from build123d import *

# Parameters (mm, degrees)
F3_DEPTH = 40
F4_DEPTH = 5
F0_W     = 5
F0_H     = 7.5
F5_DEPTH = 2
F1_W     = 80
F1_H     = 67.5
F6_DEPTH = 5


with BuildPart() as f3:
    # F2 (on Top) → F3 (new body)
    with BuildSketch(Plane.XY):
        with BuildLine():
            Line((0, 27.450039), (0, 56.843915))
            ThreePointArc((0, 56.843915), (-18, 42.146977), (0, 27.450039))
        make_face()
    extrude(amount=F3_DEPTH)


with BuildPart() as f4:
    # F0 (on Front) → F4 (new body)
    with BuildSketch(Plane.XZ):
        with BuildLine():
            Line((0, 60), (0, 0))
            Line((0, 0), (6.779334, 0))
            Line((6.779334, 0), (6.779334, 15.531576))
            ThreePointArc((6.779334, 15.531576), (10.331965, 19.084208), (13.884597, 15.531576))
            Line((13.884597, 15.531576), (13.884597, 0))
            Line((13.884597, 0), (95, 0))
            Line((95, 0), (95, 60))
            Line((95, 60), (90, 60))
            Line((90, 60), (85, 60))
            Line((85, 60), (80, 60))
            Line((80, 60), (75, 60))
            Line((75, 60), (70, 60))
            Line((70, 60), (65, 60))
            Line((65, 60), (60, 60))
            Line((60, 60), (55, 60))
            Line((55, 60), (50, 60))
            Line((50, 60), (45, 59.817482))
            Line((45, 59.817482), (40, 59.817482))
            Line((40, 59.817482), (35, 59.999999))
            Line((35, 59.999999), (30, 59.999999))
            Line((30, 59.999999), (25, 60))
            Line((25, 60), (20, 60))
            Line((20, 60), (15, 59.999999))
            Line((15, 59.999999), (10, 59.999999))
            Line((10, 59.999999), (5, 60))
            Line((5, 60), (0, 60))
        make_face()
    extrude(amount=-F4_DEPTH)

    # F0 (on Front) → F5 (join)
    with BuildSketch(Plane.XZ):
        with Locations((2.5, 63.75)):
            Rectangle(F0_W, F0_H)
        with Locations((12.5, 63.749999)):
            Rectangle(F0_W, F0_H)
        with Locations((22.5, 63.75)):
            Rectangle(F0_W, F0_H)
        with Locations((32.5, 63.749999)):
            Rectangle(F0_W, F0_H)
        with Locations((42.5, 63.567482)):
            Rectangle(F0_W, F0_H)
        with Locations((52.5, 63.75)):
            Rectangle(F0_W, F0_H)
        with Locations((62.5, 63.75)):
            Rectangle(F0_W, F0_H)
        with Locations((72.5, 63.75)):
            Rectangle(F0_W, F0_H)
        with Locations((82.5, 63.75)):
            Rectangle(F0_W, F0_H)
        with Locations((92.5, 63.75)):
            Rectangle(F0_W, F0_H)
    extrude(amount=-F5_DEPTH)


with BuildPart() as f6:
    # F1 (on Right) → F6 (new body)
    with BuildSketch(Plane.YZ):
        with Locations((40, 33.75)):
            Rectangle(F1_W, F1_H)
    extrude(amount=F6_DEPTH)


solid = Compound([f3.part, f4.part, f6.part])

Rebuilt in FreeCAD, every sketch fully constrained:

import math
import FreeCAD as App
import Part
import Sketcher
from FreeCAD import Vector
Q = App.Units.Quantity

doc = App.newDocument("Part")
body = doc.addObject("PartDesign::Body", "Body")

sketch1 = body.newObject("Sketcher::SketchObject", "Sketch")
sketch1.AttachmentSupport = (doc.getObject("XY_Plane"), [""])
sketch1.MapMode = "FlatFace"
sketch1.addGeometry([
    Part.LineSegment(Vector(0, 27.450039, 0), Vector(0, 56.843915, 0)),
    Part.ArcOfCircle(Part.Circle(Vector(-3, 42.146977, 0), Vector(0, 0, 1), 15), math.radians(78.463039), math.radians(281.536961)),
], False)
sketch1.addConstraint([
    Sketcher.Constraint("Coincident", 0, 1, 1, 2),
    Sketcher.Constraint("Coincident", 1, 1, 0, 2),
    Sketcher.Constraint("Vertical", 0),
    Sketcher.Constraint("PointOnObject", 0, 1, -2),
    Sketcher.Constraint("Radius", 1, Q("15 mm")),
    Sketcher.Constraint("DistanceX", 1, 3, -1, 1, Q("3 mm")),
    Sketcher.Constraint("DistanceY", -1, 1, 0, 1, Q("27.450039 mm")),
])
pad1 = body.newObject("PartDesign::Pad", "Pad")
pad1.Profile = sketch1
pad1.Length = 40
body2 = doc.addObject("PartDesign::Body", "Body001")

sketch2 = body2.newObject("Sketcher::SketchObject", "Sketch001")
sketch2.AttachmentSupport = (doc.getObject("XZ_Plane001"), [""])
sketch2.MapMode = "FlatFace"
sketch2.addGeometry([
    Part.LineSegment(Vector(0, 60, 0), Vector(0, 0, 0)),
    Part.LineSegment(Vector(0, 0, 0), Vector(6.779334, 0, 0)),
    Part.LineSegment(Vector(6.779334, 0, 0), Vector(6.779334, 15.531576, 0)),
    Part.ArcOfCircle(Part.Circle(Vector(10.331966, 15.531576, 0), Vector(0, 0, 1), 3.552631), math.radians(-0.000008), math.radians(180.000008)),
    Part.LineSegment(Vector(13.884597, 15.531576, 0), Vector(13.884597, 0, 0)),
    Part.LineSegment(Vector(13.884597, 0, 0), Vector(95, 0, 0)),
    Part.LineSegment(Vector(95, 0, 0), Vector(95, 60, 0)),
    Part.LineSegment(Vector(95, 60, 0), Vector(50, 60, 0)),
    Part.LineSegment(Vector(50, 60, 0), Vector(45, 59.817482, 0)),
    Part.LineSegment(Vector(45, 59.817482, 0), Vector(40, 59.817482, 0)),
    Part.LineSegment(Vector(40, 59.817482, 0), Vector(35, 59.999999, 0)),
    Part.LineSegment(Vector(35, 59.999999, 0), Vector(30, 59.999999, 0)),
    Part.LineSegment(Vector(30, 59.999999, 0), Vector(25, 60, 0)),
    Part.LineSegment(Vector(25, 60, 0), Vector(20, 60, 0)),
    Part.LineSegment(Vector(20, 60, 0), Vector(15, 59.999999, 0)),
    Part.LineSegment(Vector(15, 59.999999, 0), Vector(10, 59.999999, 0)),
    Part.LineSegment(Vector(10, 59.999999, 0), Vector(5, 60, 0)),
    Part.LineSegment(Vector(5, 60, 0), Vector(0, 60, 0)),
], False)
sketch2.addConstraint([
    Sketcher.Constraint("Coincident", 0, 2, 1, 1),
    Sketcher.Constraint("Coincident", 1, 2, 2, 1),
    Sketcher.Constraint("Tangent", 2, 2, 3, 2),
    Sketcher.Constraint("Tangent", 3, 1, 4, 1),
    Sketcher.Constraint("Coincident", 4, 2, 5, 1),
    Sketcher.Constraint("Coincident", 5, 2, 6, 1),
    Sketcher.Constraint("Coincident", 6, 2, 7, 1),
    Sketcher.Constraint("Coincident", 7, 2, 8, 1),
    Sketcher.Constraint("Coincident", 8, 2, 9, 1),
    Sketcher.Constraint("Coincident", 9, 2, 10, 1),
    Sketcher.Constraint("Coincident", 10, 2, 11, 1),
    Sketcher.Constraint("Coincident", 11, 2, 12, 1),
    Sketcher.Constraint("Coincident", 12, 2, 13, 1),
    Sketcher.Constraint("Coincident", 13, 2, 14, 1),
    Sketcher.Constraint("Coincident", 14, 2, 15, 1),
    Sketcher.Constraint("Coincident", 15, 2, 16, 1),
    Sketcher.Constraint("Coincident", 16, 2, 17, 1),
    Sketcher.Constraint("Coincident", 17, 2, 0, 1),
    Sketcher.Constraint("Vertical", 0),
    Sketcher.Constraint("Horizontal", 1),
    Sketcher.Constraint("Vertical", 2),
    Sketcher.Constraint("Vertical", 4),
    Sketcher.Constraint("Horizontal", 5),
    Sketcher.Constraint("Vertical", 6),
    Sketcher.Constraint("Horizontal", 7),
    Sketcher.Constraint("Horizontal", 9),
    Sketcher.Constraint("Horizontal", 11),
    Sketcher.Constraint("Horizontal", 12),
    Sketcher.Constraint("Horizontal", 13),
    Sketcher.Constraint("Horizontal", 14),
    Sketcher.Constraint("Horizontal", 15),
    Sketcher.Constraint("Horizontal", 16),
    Sketcher.Constraint("Horizontal", 17),
    Sketcher.Constraint("Coincident", 0, 2, -1, 1),
    Sketcher.Constraint("PointOnObject", 4, 2, -1),
    Sketcher.Constraint("Horizontal", 7, 2, 10, 2),
    Sketcher.Constraint("Equal", 9, 11),
    Sketcher.Constraint("Equal", 11, 12),
    Sketcher.Constraint("Equal", 12, 13),
    Sketcher.Constraint("Equal", 13, 14),
    Sketcher.Constraint("Equal", 14, 15),
    Sketcher.Constraint("Equal", 15, 16),
    Sketcher.Constraint("Equal", 16, 17),
    Sketcher.Constraint("Equal", 8, 10),
    Sketcher.Constraint("DistanceX", 7, 2, 7, 1, Q("45 mm")),
    Sketcher.Constraint("DistanceX", 9, 2, 9, 1, Q("5 mm")),
    Sketcher.Constraint("DistanceY", 0, 2, 0, 1, Q("60 mm")),
    Sketcher.Constraint("DistanceX", -1, 1, 5, 2, Q("95 mm")),
    Sketcher.Constraint("Radius", 3, Q("3.552631 mm")),
    Sketcher.Constraint("Distance", 8, Q("5.00333 mm")),
    Sketcher.Constraint("DistanceX", 1, 1, 1, 2, Q("6.779334 mm")),
    Sketcher.Constraint("DistanceY", 2, 1, 2, 2, Q("15.531576 mm")),
])
pad2 = body2.newObject("PartDesign::Pad", "Pad001")
pad2.Profile = sketch2
pad2.Length = 5
pad2.Reversed = True

sketch3 = body2.newObject("Sketcher::SketchObject", "Sketch002")
sketch3.AttachmentSupport = (doc.getObject("XZ_Plane001"), [""])
sketch3.MapMode = "FlatFace"
sketch3.addGeometry([
    Part.LineSegment(Vector(0, 67.5, 0), Vector(0, 60, 0)),
    Part.LineSegment(Vector(0, 60, 0), Vector(5, 60, 0)),
    Part.LineSegment(Vector(5, 60, 0), Vector(5, 67.5, 0)),
    Part.LineSegment(Vector(5, 67.5, 0), Vector(0, 67.5, 0)),
    Part.LineSegment(Vector(10, 67.499999, 0), Vector(10, 59.999999, 0)),
    Part.LineSegment(Vector(10, 59.999999, 0), Vector(15, 59.999999, 0)),
    Part.LineSegment(Vector(15, 59.999999, 0), Vector(15, 67.499999, 0)),
    Part.LineSegment(Vector(15, 67.499999, 0), Vector(10, 67.499999, 0)),
    Part.LineSegment(Vector(20, 67.5, 0), Vector(20, 60, 0)),
    Part.LineSegment(Vector(20, 60, 0), Vector(25, 60, 0)),
    Part.LineSegment(Vector(25, 60, 0), Vector(25, 67.5, 0)),
    Part.LineSegment(Vector(25, 67.5, 0), Vector(20, 67.5, 0)),
    Part.LineSegment(Vector(30, 67.499999, 0), Vector(30, 59.999999, 0)),
    Part.LineSegment(Vector(30, 59.999999, 0), Vector(35, 59.999999, 0)),
    Part.LineSegment(Vector(35, 59.999999, 0), Vector(35, 67.499999, 0)),
    Part.LineSegment(Vector(35, 67.499999, 0), Vector(30, 67.499999, 0)),
    Part.LineSegment(Vector(40, 67.317482, 0), Vector(40, 59.817482, 0)),
    Part.LineSegment(Vector(40, 59.817482, 0), Vector(45, 59.817482, 0)),
    Part.LineSegment(Vector(45, 59.817482, 0), Vector(45, 67.317482, 0)),
    Part.LineSegment(Vector(45, 67.317482, 0), Vector(40, 67.317482, 0)),
    Part.LineSegment(Vector(50, 67.5, 0), Vector(50, 60, 0)),
    Part.LineSegment(Vector(50, 60, 0), Vector(55, 60, 0)),
    Part.LineSegment(Vector(55, 60, 0), Vector(55, 67.5, 0)),
    Part.LineSegment(Vector(55, 67.5, 0), Vector(50, 67.5, 0)),
    Part.LineSegment(Vector(60, 67.5, 0), Vector(60, 60, 0)),
    Part.LineSegment(Vector(60, 60, 0), Vector(65, 60, 0)),
    Part.LineSegment(Vector(65, 60, 0), Vector(65, 67.5, 0)),
    Part.LineSegment(Vector(65, 67.5, 0), Vector(60, 67.5, 0)),
    Part.LineSegment(Vector(70, 67.5, 0), Vector(70, 60, 0)),
    Part.LineSegment(Vector(70, 60, 0), Vector(75, 60, 0)),
    Part.LineSegment(Vector(75, 60, 0), Vector(75, 67.5, 0)),
    Part.LineSegment(Vector(75, 67.5, 0), Vector(70, 67.5, 0)),
    Part.LineSegment(Vector(80, 67.5, 0), Vector(80, 60, 0)),
    Part.LineSegment(Vector(80, 60, 0), Vector(85, 60, 0)),
    Part.LineSegment(Vector(85, 60, 0), Vector(85, 67.5, 0)),
    Part.LineSegment(Vector(85, 67.5, 0), Vector(80, 67.5, 0)),
    Part.LineSegment(Vector(90, 67.5, 0), Vector(90, 60, 0)),
    Part.LineSegment(Vector(90, 60, 0), Vector(95, 60, 0)),
    Part.LineSegment(Vector(95, 60, 0), Vector(95, 67.5, 0)),
    Part.LineSegment(Vector(95, 67.5, 0), Vector(90, 67.5, 0)),
], False)
sketch3.addConstraint([
    Sketcher.Constraint("Coincident", 0, 2, 1, 1),
    Sketcher.Constraint("Coincident", 1, 2, 2, 1),
    Sketcher.Constraint("Coincident", 2, 2, 3, 1),
    Sketcher.Constraint("Coincident", 3, 2, 0, 1),
    Sketcher.Constraint("Coincident", 4, 2, 5, 1),
    Sketcher.Constraint("Coincident", 5, 2, 6, 1),
    Sketcher.Constraint("Coincident", 6, 2, 7, 1),
    Sketcher.Constraint("Coincident", 7, 2, 4, 1),
    Sketcher.Constraint("Coincident", 8, 2, 9, 1),
    Sketcher.Constraint("Coincident", 9, 2, 10, 1),
    Sketcher.Constraint("Coincident", 10, 2, 11, 1),
    Sketcher.Constraint("Coincident", 11, 2, 8, 1),
    Sketcher.Constraint("Coincident", 12, 2, 13, 1),
    Sketcher.Constraint("Coincident", 13, 2, 14, 1),
    Sketcher.Constraint("Coincident", 14, 2, 15, 1),
    Sketcher.Constraint("Coincident", 15, 2, 12, 1),
    Sketcher.Constraint("Coincident", 16, 2, 17, 1),
    Sketcher.Constraint("Coincident", 17, 2, 18, 1),
    Sketcher.Constraint("Coincident", 18, 2, 19, 1),
    Sketcher.Constraint("Coincident", 19, 2, 16, 1),
    Sketcher.Constraint("Coincident", 20, 2, 21, 1),
    Sketcher.Constraint("Coincident", 21, 2, 22, 1),
    Sketcher.Constraint("Coincident", 22, 2, 23, 1),
    Sketcher.Constraint("Coincident", 23, 2, 20, 1),
    Sketcher.Constraint("Coincident", 24, 2, 25, 1),
    Sketcher.Constraint("Coincident", 25, 2, 26, 1),
    Sketcher.Constraint("Coincident", 26, 2, 27, 1),
    Sketcher.Constraint("Coincident", 27, 2, 24, 1),
    Sketcher.Constraint("Coincident", 28, 2, 29, 1),
    Sketcher.Constraint("Coincident", 29, 2, 30, 1),
    Sketcher.Constraint("Coincident", 30, 2, 31, 1),
    Sketcher.Constraint("Coincident", 31, 2, 28, 1),
    Sketcher.Constraint("Coincident", 32, 2, 33, 1),
    Sketcher.Constraint("Coincident", 33, 2, 34, 1),
    Sketcher.Constraint("Coincident", 34, 2, 35, 1),
    Sketcher.Constraint("Coincident", 35, 2, 32, 1),
    Sketcher.Constraint("Coincident", 36, 2, 37, 1),
    Sketcher.Constraint("Coincident", 37, 2, 38, 1),
    Sketcher.Constraint("Coincident", 38, 2, 39, 1),
    Sketcher.Constraint("Coincident", 39, 2, 36, 1),
    Sketcher.Constraint("Vertical", 0),
    Sketcher.Constraint("Horizontal", 1),
    Sketcher.Constraint("Vertical", 2),
    Sketcher.Constraint("Horizontal", 3),
    Sketcher.Constraint("Vertical", 4),
    Sketcher.Constraint("Horizontal", 5),
    Sketcher.Constraint("Vertical", 6),
    Sketcher.Constraint("Horizontal", 7),
    Sketcher.Constraint("Vertical", 8),
    Sketcher.Constraint("Horizontal", 9),
    Sketcher.Constraint("Vertical", 10),
    Sketcher.Constraint("Horizontal", 11),
    Sketcher.Constraint("Vertical", 12),
    Sketcher.Constraint("Horizontal", 13),
    Sketcher.Constraint("Vertical", 14),
    Sketcher.Constraint("Horizontal", 15),
    Sketcher.Constraint("Vertical", 16),
    Sketcher.Constraint("Horizontal", 17),
    Sketcher.Constraint("Vertical", 18),
    Sketcher.Constraint("Horizontal", 19),
    Sketcher.Constraint("Vertical", 20),
    Sketcher.Constraint("Horizontal", 21),
    Sketcher.Constraint("Vertical", 22),
    Sketcher.Constraint("Horizontal", 23),
    Sketcher.Constraint("Vertical", 24),
    Sketcher.Constraint("Horizontal", 25),
    Sketcher.Constraint("Vertical", 26),
    Sketcher.Constraint("Horizontal", 27),
    Sketcher.Constraint("Vertical", 28),
    Sketcher.Constraint("Horizontal", 29),
    Sketcher.Constraint("Vertical", 30),
    Sketcher.Constraint("Horizontal", 31),
    Sketcher.Constraint("Vertical", 32),
    Sketcher.Constraint("Horizontal", 33),
    Sketcher.Constraint("Vertical", 34),
    Sketcher.Constraint("Horizontal", 35),
    Sketcher.Constraint("Vertical", 36),
    Sketcher.Constraint("Horizontal", 37),
    Sketcher.Constraint("Vertical", 38),
    Sketcher.Constraint("Horizontal", 39),
    Sketcher.Constraint("PointOnObject", 0, 2, -2),
    Sketcher.Constraint("Horizontal", 1, 2, 4, 2),
    Sketcher.Constraint("Horizontal", 3, 2, 6, 2),
    Sketcher.Constraint("Horizontal", 5, 2, 8, 2),
    Sketcher.Constraint("Horizontal", 7, 2, 10, 2),
    Sketcher.Constraint("Horizontal", 9, 2, 12, 2),
    Sketcher.Constraint("Horizontal", 11, 2, 14, 2),
    Sketcher.Constraint("Horizontal", 13, 2, 20, 2),
    Sketcher.Constraint("Horizontal", 15, 2, 22, 2),
    Sketcher.Constraint("Horizontal", 21, 2, 24, 2),
    Sketcher.Constraint("Horizontal", 23, 2, 26, 2),
    Sketcher.Constraint("Horizontal", 25, 2, 28, 2),
    Sketcher.Constraint("Horizontal", 27, 2, 30, 2),
    Sketcher.Constraint("Horizontal", 29, 2, 32, 2),
    Sketcher.Constraint("Horizontal", 31, 2, 34, 2),
    Sketcher.Constraint("Horizontal", 33, 2, 36, 2),
    Sketcher.Constraint("Horizontal", 35, 2, 38, 2),
    Sketcher.Constraint("Equal", 3, 5),
    Sketcher.Constraint("Equal", 7, 9),
    Sketcher.Constraint("Equal", 11, 13),
    Sketcher.Constraint("Equal", 15, 17),
    Sketcher.Constraint("Equal", 19, 21),
    Sketcher.Constraint("Equal", 23, 25),
    Sketcher.Constraint("Equal", 27, 29),
    Sketcher.Constraint("Equal", 31, 33),
    Sketcher.Constraint("Equal", 35, 37),
    Sketcher.Constraint("Equal", 14, 16),
    Sketcher.Constraint("DistanceX", 1, 1, 1, 2, Q("5 mm")),
    Sketcher.Constraint("DistanceY", 0, 2, 0, 1, Q("7.5 mm")),
    Sketcher.Constraint("DistanceY", -1, 1, 0, 2, Q("60 mm")),
    Sketcher.Constraint("DistanceX", -1, 1, 4, 2, Q("10 mm")),
    Sketcher.Constraint("DistanceX", -1, 1, 8, 2, Q("20 mm")),
    Sketcher.Constraint("DistanceX", -1, 1, 12, 2, Q("30 mm")),
    Sketcher.Constraint("DistanceX", -1, 1, 16, 2, Q("40 mm")),
    Sketcher.Constraint("DistanceX", -1, 1, 20, 2, Q("50 mm")),
    Sketcher.Constraint("DistanceX", -1, 1, 24, 2, Q("60 mm")),
    Sketcher.Constraint("DistanceX", -1, 1, 28, 2, Q("70 mm")),
    Sketcher.Constraint("DistanceX", -1, 1, 32, 2, Q("80 mm")),
    Sketcher.Constraint("DistanceX", -1, 1, 36, 2, Q("90 mm")),
    Sketcher.Constraint("DistanceY", -1, 1, 16, 2, Q("59.817482 mm")),
])
pad3 = body2.newObject("PartDesign::Pad", "Pad002")
pad3.Profile = sketch3
pad3.Length = 2
pad3.Reversed = True
body3 = doc.addObject("PartDesign::Body", "Body002")

sketch4 = body3.newObject("Sketcher::SketchObject", "Sketch003")
sketch4.AttachmentSupport = (doc.getObject("YZ_Plane002"), [""])
sketch4.MapMode = "FlatFace"
sketch4.addGeometry([
    Part.LineSegment(Vector(0, 67.5, 0), Vector(0, 0, 0)),
    Part.LineSegment(Vector(0, 0, 0), Vector(80, 0, 0)),
    Part.LineSegment(Vector(80, 0, 0), Vector(80, 67.5, 0)),
    Part.LineSegment(Vector(80, 67.5, 0), Vector(0, 67.5, 0)),
], False)
sketch4.addConstraint([
    Sketcher.Constraint("Coincident", 0, 2, 1, 1),
    Sketcher.Constraint("Coincident", 1, 2, 2, 1),
    Sketcher.Constraint("Coincident", 2, 2, 3, 1),
    Sketcher.Constraint("Coincident", 3, 2, 0, 1),
    Sketcher.Constraint("Vertical", 0),
    Sketcher.Constraint("Horizontal", 1),
    Sketcher.Constraint("Vertical", 2),
    Sketcher.Constraint("Horizontal", 3),
    Sketcher.Constraint("Coincident", 0, 2, -1, 1),
    Sketcher.Constraint("DistanceX", 1, 1, 1, 2, Q("80 mm")),
    Sketcher.Constraint("DistanceY", 0, 2, 0, 1, Q("67.5 mm")),
])
pad4 = body3.newObject("PartDesign::Pad", "Pad003")
pad4.Profile = sketch4
pad4.Length = 5

doc.recompute()
